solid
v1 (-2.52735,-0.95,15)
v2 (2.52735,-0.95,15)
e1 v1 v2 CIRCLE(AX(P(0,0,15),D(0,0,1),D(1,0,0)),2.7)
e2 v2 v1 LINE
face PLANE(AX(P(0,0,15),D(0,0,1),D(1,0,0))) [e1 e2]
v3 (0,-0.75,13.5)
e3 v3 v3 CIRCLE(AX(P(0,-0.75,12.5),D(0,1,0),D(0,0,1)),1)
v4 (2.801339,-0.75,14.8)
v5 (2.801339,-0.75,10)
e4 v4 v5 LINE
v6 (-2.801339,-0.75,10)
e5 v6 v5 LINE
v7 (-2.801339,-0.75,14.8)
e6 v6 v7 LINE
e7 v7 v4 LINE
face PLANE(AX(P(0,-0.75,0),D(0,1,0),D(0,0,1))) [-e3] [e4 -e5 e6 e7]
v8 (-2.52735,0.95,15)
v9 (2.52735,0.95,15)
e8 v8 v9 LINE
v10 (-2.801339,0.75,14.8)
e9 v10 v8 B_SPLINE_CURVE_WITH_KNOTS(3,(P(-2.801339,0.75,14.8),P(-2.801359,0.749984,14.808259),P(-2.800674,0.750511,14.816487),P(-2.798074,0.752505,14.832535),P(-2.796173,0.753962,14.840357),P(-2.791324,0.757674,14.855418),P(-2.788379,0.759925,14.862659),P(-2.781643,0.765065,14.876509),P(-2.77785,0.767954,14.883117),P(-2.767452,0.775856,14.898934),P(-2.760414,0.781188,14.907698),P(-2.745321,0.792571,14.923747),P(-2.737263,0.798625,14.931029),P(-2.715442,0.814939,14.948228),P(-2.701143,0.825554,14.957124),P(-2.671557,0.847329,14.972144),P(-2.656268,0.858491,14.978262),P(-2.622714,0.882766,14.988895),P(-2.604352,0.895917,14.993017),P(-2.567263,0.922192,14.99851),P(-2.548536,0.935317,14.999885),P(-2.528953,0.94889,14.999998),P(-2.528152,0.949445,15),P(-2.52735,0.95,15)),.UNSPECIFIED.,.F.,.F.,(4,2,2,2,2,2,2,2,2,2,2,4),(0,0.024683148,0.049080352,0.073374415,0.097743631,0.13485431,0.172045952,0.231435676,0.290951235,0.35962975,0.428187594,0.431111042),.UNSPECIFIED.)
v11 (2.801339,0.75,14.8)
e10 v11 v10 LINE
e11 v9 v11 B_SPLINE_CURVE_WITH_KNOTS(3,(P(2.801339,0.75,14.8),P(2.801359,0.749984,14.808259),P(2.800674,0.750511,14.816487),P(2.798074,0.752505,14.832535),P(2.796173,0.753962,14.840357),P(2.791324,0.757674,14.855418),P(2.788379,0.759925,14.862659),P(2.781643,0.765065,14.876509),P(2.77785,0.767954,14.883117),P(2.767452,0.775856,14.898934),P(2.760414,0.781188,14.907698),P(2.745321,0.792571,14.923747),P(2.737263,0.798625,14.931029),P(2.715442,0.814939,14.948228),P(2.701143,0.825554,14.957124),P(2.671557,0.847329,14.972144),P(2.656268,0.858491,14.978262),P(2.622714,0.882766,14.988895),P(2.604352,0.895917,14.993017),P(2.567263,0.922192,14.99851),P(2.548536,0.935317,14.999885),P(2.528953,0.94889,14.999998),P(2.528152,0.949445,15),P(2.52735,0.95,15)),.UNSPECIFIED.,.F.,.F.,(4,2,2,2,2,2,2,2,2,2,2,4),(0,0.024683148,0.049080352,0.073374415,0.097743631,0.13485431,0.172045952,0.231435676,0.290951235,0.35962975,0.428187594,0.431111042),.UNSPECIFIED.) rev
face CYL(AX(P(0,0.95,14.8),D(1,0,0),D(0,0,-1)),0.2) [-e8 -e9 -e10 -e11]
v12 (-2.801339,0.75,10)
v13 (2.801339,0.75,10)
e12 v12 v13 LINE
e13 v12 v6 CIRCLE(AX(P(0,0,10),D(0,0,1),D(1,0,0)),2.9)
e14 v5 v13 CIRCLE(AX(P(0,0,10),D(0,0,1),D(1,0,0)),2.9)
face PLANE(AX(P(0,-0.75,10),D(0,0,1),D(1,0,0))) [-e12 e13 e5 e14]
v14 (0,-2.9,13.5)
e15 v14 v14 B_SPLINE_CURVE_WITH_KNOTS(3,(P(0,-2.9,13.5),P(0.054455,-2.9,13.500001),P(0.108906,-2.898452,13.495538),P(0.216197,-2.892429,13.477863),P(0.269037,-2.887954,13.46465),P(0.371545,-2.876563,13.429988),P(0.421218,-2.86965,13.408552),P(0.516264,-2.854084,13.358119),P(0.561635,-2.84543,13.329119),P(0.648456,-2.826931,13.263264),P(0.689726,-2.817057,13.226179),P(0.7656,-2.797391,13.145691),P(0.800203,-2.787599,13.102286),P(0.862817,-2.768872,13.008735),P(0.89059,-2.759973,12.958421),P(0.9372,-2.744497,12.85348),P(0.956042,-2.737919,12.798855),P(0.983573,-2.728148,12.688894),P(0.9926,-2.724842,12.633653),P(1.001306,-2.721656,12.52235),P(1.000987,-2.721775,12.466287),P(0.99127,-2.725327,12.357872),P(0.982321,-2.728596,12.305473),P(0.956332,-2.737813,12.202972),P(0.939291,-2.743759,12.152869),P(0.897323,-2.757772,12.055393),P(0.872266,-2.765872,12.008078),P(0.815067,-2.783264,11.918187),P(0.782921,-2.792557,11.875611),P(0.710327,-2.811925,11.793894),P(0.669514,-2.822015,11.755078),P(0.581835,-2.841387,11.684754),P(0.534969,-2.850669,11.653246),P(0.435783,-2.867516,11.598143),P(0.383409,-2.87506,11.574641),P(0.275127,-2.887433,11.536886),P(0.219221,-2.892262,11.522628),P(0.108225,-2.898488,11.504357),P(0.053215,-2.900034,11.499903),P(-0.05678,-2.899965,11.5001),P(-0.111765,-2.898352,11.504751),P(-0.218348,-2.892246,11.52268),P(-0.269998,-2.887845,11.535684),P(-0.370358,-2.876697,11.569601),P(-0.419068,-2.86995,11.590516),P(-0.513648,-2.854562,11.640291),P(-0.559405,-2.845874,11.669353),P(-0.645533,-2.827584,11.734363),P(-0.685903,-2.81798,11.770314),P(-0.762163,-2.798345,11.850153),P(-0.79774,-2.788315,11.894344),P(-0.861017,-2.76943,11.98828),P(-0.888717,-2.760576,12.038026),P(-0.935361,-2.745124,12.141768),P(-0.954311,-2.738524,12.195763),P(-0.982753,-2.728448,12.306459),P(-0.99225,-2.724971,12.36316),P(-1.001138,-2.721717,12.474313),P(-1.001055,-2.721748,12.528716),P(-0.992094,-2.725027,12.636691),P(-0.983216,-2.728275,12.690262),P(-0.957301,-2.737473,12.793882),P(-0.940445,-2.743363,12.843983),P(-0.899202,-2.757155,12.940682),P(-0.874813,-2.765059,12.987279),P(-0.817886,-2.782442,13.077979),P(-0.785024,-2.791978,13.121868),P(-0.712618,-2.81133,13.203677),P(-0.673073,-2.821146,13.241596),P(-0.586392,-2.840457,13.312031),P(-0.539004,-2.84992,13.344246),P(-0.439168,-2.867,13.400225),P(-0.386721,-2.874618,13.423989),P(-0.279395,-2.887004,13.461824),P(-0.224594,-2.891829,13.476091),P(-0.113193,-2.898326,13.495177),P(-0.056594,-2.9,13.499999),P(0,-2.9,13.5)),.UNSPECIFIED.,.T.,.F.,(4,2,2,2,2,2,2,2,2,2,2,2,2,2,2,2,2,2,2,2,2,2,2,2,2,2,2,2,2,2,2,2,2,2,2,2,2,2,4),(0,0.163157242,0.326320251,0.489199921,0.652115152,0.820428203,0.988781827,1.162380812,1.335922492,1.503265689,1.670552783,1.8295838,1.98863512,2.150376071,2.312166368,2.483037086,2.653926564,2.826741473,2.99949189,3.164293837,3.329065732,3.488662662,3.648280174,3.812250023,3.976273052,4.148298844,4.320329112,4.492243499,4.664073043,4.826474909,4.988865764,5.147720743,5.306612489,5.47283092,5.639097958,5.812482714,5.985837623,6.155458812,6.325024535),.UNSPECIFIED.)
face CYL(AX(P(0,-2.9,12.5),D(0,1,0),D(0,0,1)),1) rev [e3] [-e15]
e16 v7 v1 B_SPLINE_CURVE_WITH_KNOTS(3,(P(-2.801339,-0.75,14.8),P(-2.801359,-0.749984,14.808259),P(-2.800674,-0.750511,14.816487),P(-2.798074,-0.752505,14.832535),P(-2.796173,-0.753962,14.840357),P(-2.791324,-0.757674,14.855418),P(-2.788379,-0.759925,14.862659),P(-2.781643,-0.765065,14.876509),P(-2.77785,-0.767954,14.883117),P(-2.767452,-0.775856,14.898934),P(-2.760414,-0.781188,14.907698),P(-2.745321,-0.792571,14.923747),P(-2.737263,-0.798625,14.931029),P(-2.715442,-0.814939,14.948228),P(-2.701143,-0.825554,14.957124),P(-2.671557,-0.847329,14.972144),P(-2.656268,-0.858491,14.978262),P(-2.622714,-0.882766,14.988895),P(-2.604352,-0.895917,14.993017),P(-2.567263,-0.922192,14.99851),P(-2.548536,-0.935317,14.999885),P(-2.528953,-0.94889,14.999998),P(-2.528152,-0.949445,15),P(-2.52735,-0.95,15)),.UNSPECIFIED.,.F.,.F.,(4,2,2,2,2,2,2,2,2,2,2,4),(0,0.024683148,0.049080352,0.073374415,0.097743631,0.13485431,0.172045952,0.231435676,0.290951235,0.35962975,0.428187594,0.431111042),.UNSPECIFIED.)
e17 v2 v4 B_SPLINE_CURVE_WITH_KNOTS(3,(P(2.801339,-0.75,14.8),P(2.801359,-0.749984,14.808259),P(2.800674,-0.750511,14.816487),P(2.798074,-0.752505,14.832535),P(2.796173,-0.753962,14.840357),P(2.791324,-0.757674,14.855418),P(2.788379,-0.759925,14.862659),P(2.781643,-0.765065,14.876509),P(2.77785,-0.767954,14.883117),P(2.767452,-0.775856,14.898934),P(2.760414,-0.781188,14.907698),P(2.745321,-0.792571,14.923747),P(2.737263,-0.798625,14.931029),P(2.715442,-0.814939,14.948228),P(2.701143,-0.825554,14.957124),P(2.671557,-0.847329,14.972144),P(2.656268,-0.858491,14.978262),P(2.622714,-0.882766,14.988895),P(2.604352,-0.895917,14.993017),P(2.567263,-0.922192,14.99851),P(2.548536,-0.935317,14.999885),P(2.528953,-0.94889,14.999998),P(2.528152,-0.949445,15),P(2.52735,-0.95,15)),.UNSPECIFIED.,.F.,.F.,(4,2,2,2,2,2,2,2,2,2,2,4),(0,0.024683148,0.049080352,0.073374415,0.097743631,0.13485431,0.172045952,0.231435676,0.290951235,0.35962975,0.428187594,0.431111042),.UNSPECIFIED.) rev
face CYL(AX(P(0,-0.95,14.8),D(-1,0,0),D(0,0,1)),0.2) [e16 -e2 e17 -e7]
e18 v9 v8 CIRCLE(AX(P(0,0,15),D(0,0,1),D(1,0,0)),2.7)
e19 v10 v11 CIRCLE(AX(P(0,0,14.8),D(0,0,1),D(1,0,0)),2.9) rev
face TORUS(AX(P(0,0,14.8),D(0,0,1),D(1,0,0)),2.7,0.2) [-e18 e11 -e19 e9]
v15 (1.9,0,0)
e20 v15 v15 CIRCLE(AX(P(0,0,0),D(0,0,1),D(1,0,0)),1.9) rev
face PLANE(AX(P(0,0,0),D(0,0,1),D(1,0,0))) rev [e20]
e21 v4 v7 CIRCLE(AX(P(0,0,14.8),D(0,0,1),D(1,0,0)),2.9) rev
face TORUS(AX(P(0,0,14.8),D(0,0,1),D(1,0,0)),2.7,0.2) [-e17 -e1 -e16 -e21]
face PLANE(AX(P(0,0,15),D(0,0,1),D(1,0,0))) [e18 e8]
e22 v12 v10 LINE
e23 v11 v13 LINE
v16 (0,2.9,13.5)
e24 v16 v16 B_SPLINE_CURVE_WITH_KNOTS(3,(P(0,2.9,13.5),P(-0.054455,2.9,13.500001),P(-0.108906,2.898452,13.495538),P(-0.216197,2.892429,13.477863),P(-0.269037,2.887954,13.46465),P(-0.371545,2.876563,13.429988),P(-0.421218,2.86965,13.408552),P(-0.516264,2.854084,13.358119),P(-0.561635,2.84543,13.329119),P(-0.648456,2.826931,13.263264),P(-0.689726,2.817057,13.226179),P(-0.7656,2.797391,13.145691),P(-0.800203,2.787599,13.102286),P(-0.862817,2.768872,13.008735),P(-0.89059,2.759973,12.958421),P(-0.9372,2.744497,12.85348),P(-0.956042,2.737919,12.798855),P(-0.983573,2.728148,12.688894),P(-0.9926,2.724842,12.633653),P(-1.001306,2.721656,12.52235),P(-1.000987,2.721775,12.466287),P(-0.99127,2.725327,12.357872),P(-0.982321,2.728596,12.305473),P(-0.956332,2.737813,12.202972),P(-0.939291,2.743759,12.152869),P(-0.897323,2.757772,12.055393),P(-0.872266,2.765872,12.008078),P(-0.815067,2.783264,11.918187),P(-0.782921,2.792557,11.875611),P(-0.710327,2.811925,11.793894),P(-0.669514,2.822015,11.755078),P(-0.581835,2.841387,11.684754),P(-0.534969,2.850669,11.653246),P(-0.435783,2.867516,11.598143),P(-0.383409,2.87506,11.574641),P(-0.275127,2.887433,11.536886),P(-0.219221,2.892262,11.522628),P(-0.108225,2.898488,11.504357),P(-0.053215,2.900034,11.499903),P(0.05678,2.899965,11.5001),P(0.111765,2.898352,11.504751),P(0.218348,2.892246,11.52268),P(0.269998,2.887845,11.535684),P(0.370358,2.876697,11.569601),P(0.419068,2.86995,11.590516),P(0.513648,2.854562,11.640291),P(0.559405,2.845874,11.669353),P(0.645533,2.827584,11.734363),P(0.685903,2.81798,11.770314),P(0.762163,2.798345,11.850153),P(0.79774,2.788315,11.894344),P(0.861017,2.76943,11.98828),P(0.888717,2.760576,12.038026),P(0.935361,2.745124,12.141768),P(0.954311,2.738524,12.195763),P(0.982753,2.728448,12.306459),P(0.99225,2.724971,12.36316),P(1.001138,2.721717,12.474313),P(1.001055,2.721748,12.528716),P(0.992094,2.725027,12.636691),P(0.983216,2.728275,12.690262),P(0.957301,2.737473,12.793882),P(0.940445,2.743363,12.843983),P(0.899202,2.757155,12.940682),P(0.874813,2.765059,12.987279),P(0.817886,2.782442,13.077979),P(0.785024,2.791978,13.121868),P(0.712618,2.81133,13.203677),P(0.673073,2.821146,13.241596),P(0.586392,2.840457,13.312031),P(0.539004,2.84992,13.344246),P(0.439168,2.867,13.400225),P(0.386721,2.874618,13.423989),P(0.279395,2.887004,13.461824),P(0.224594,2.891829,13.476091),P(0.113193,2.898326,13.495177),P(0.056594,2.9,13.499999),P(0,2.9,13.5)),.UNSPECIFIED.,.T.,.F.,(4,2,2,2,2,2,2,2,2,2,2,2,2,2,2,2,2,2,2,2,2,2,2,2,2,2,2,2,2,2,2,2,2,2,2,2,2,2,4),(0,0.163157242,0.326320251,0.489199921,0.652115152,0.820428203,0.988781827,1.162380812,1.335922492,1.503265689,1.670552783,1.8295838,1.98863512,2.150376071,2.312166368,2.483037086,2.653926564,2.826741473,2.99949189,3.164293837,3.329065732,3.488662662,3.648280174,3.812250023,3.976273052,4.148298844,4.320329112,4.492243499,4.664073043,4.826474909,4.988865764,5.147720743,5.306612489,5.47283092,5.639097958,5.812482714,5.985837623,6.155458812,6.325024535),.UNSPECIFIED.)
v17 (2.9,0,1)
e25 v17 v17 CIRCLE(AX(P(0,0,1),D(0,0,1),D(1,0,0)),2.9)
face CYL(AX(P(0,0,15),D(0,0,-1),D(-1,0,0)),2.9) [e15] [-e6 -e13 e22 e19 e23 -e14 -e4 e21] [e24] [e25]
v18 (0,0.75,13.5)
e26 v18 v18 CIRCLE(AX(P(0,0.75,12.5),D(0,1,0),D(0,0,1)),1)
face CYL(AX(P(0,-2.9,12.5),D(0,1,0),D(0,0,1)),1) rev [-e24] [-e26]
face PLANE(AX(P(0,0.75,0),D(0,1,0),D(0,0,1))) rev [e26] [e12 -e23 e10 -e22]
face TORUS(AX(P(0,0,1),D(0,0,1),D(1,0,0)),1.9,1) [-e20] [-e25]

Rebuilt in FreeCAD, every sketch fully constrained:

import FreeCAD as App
import Part
import Sketcher


def edges_at(feature, points):
    """Names of the edges that pass closest to the given points."""
    edges = feature.Shape.Edges
    near = lambda p: min(range(len(edges)), key=lambda i: edges[i].distToShape(Part.Vertex(*p))[0])
    return sorted({f"Edge{near(p) + 1}" for p in points})


def add_polygon(sketch, points):
    """Adds a closed chain of lines whose ends are joined by coincident constraints."""
    first, n = sketch.GeometryCount, len(points)
    for a, b in zip(points, points[1:] + points[:1]):
        sketch.addGeometry(Part.LineSegment(App.Vector(*a, 0), App.Vector(*b, 0)), False)
    for i in range(n):
        sketch.addConstraint(Sketcher.Constraint("Coincident", first + i, 2, first + (i + 1) % n, 1))

doc = App.newDocument("Part")
body = doc.addObject("PartDesign::Body", "Body")

sketch1 = body.newObject("Sketcher::SketchObject", "Sketch")
sketch1.AttachmentSupport = (doc.getObject("XY_Plane"), [""])
sketch1.MapMode = "FlatFace"
sketch1.addGeometry(Part.Circle(App.Vector(0, 0, 0), App.Vector(0, 0, 1), 2.9), False)
sketch1.addConstraint(Sketcher.Constraint("Coincident", 0, 3, -1, 1))
sketch1.addConstraint(Sketcher.Constraint("Diameter", 0, 5.8))
pad1 = body.newObject("PartDesign::Pad", "Pad")
pad1.Profile = sketch1
pad1.Length = 15
doc.recompute()

fillet = body.newObject("PartDesign::Fillet", "Fillet")
fillet.Base = (pad1, edges_at(pad1, [(-2.9, 0, 0)]))
fillet.Radius = 1

sketch2 = body.newObject("Sketcher::SketchObject", "Sketch001")
sketch2.AttachmentSupport = (doc.getObject("XZ_Plane"), [""])
sketch2.MapMode = "FlatFace"
add_polygon(sketch2, [(-3, 10), (-3, 15), (3, 15), (3, 10)])
sketch2.addConstraint(Sketcher.Constraint("Vertical", 0))
sketch2.addConstraint(Sketcher.Constraint("Horizontal", 1))
sketch2.addConstraint(Sketcher.Constraint("Vertical", 2))
sketch2.addConstraint(Sketcher.Constraint("Horizontal", 3))
sketch2.addConstraint(Sketcher.Constraint("DistanceY", 0, 1, 0, 2, 5.0))
sketch2.addConstraint(Sketcher.Constraint("DistanceX", 1, 1, 1, 2, 5.8))
sketch2.addConstraint(Sketcher.Constraint("DistanceY", -1, 1, 0, 2, 15.0))
sketch2.addConstraint(Sketcher.Constraint("DistanceX", 0, 2, -1, 1, 2.9))
pocket1 = body.newObject("PartDesign::Pocket", "Pocket")
pocket1.Profile = sketch2
pocket1.Length = 1.5
pocket1.Midplane = True

sketch3 = body.newObject("Sketcher::SketchObject", "Sketch002")
sketch3.AttachmentSupport = (doc.getObject("XZ_Plane"), [""])
sketch3.MapMode = "FlatFace"
sketch3.addGeometry(Part.Circle(App.Vector(0, 12.5, 0), App.Vector(0, 0, 1), 1), False)
sketch3.addConstraint(Sketcher.Constraint("PointOnObject", 0, 3, -2))
sketch3.addConstraint(Sketcher.Constraint("Diameter", 0, 2.0))
sketch3.addConstraint(Sketcher.Constraint("DistanceY", -1, 1, 0, 3, 12.5))
pocket2 = body.newObject("PartDesign::Pocket", "Pocket001")
pocket2.Profile = sketch3
pocket2.Type = "ThroughAll"
pocket2.Midplane = True
doc.recompute()

fillet2 = body.newObject("PartDesign::Fillet", "Fillet001")
fillet2.Base = (pocket2, edges_at(pocket2, [
    (0, 0.75, 15),
    (0, -0.75, 15),
    (0, 2.9, 15),
    (0, -2.9, 15),
]))
fillet2.Radius = 0.2

doc.recompute()
